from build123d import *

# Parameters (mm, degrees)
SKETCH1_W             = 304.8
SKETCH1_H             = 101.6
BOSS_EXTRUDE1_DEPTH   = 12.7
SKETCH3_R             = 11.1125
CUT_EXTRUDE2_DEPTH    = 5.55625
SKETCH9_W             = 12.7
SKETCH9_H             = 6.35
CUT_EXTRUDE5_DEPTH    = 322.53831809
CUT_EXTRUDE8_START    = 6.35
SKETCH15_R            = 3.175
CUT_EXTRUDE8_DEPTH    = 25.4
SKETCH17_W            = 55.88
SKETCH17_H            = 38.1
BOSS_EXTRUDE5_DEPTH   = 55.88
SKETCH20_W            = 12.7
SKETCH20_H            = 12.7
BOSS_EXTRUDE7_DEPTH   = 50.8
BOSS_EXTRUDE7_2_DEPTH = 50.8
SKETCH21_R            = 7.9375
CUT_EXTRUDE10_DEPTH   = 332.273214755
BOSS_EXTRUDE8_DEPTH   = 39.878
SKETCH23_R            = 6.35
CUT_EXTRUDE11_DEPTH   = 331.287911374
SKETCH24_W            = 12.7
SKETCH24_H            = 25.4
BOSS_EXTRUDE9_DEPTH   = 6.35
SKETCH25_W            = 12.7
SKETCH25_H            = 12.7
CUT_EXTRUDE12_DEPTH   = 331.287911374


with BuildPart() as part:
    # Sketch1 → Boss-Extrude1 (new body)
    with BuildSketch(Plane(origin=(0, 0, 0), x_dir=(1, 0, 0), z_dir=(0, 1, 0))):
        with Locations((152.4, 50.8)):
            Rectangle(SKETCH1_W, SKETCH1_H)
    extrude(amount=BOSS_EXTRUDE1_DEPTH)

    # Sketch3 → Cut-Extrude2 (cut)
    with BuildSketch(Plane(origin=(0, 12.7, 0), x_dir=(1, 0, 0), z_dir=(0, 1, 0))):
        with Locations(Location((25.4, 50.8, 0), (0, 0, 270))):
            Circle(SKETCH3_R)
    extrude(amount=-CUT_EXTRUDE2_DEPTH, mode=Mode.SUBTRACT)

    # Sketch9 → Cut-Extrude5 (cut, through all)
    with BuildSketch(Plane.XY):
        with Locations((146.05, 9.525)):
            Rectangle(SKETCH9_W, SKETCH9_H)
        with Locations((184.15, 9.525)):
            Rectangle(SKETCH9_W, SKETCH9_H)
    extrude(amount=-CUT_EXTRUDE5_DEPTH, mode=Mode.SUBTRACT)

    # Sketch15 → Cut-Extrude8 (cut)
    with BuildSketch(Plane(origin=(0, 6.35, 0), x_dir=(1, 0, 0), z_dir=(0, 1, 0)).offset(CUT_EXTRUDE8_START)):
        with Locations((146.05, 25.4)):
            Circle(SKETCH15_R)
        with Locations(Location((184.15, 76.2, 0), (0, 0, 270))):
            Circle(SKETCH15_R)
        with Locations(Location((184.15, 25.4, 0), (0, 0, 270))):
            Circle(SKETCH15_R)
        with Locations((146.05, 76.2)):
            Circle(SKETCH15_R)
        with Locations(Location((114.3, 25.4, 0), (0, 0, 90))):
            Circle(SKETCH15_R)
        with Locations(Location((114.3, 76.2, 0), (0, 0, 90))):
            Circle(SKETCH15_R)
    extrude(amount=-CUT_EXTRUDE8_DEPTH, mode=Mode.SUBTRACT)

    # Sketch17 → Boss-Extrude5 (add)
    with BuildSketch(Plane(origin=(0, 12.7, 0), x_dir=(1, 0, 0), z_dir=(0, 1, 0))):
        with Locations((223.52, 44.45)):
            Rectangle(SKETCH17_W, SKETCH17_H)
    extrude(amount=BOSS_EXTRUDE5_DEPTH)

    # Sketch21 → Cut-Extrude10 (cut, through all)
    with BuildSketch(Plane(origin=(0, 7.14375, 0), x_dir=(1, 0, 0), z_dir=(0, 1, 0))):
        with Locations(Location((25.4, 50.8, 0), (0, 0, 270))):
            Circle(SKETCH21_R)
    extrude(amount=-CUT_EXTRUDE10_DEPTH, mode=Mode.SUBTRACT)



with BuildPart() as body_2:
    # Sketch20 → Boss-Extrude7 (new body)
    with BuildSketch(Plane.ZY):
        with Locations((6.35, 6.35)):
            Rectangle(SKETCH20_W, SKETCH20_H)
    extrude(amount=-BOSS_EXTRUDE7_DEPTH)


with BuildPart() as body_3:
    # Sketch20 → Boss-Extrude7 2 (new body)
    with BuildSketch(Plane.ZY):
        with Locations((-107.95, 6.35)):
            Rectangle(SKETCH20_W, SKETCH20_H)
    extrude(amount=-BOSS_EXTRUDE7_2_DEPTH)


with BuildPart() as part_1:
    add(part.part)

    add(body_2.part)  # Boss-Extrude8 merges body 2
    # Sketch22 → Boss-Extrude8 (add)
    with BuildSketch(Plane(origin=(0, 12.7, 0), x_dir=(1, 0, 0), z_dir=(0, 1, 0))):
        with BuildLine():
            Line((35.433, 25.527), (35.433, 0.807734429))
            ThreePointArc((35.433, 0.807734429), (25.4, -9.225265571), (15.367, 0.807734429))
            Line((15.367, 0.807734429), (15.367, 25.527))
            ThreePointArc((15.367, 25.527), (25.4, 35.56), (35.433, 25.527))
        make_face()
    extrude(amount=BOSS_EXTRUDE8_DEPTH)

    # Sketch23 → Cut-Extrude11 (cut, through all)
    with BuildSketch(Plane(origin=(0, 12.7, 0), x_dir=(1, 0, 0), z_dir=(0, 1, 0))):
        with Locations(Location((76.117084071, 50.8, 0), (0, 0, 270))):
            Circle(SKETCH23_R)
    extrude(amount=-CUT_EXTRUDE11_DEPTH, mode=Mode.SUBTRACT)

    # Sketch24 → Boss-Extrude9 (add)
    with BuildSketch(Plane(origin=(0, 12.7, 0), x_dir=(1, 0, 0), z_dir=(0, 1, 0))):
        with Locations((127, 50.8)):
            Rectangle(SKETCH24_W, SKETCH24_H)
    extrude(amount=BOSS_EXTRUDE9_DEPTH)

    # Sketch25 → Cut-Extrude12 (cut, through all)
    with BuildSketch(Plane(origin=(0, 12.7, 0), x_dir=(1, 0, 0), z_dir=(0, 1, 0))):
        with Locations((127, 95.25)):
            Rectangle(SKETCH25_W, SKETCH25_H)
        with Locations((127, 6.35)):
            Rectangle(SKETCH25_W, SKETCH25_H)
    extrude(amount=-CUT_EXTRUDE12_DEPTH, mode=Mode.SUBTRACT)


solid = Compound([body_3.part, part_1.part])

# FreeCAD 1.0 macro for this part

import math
import FreeCAD as App
import Part
import Sketcher
Q = App.Units.Quantity


def add_polygon(sketch, points):
    """Adds a closed chain of lines whose ends are joined by coincident constraints."""
    first, n = sketch.GeometryCount, len(points)
    for a, b in zip(points, points[1:] + points[:1]):
        sketch.addGeometry(Part.LineSegment(App.Vector(*a, 0), App.Vector(*b, 0)), False)
    for i in range(n):
        sketch.addConstraint(Sketcher.Constraint("Coincident", first + i, 2, first + (i + 1) % n, 1))

doc = App.newDocument("Part")
body = doc.addObject("PartDesign::Body", "Body")

sketch1 = doc.addObject("Sketcher::SketchObject", "Sketch")
body.addObject(sketch1)
sketch1.AttachmentSupport = (doc.XZ_Plane, [""])
sketch1.MapMode = "FlatFace"
add_polygon(sketch1, [(0, -102), (0, 0), (305, 0), (305, -102)])
sketch1.addConstraint(Sketcher.Constraint("Vertical", 0))
sketch1.addConstraint(Sketcher.Constraint("Horizontal", 1))
sketch1.addConstraint(Sketcher.Constraint("Vertical", 2))
sketch1.addConstraint(Sketcher.Constraint("Horizontal", 3))
sketch1.addConstraint(Sketcher.Constraint("Coincident", 0, 2, -1, 1))
sketch1.addConstraint(Sketcher.Constraint("DistanceX", 1, 1, 1, 2, Q("12 in")))
sketch1.addConstraint(Sketcher.Constraint("DistanceY", 0, 1, 0, 2, Q("4 in")))
pad1 = doc.addObject("PartDesign::Pad", "Pad")
body.addObject(pad1)
pad1.Profile = sketch1
pad1.Length = Q("0.5 in")
pad1.Reversed = True

sketch2 = doc.addObject("Sketcher::SketchObject", "Sketch001")
body.addObject(sketch2)
sketch2.AttachmentSupport = (doc.XZ_Plane, [""])
sketch2.MapMode = "FlatFace"
sketch2.AttachmentOffset = App.Placement(App.Vector(0, 0, -0.5 * 25.4), App.Rotation())
sketch2.addGeometry(Part.Circle(App.Vector(25, -51, 0), App.Vector(0, 0, 1), 11), False)
sketch2.addConstraint(Sketcher.Constraint("Diameter", 0, Q("0.875 in")))
sketch2.addConstraint(Sketcher.Constraint("DistanceX", -1, 1, 0, 3, Q("1 in")))
sketch2.addConstraint(Sketcher.Constraint("DistanceY", 0, 3, -1, 1, Q("2 in")))
pocket1 = doc.addObject("PartDesign::Pocket", "Pocket")
body.addObject(pocket1)
pocket1.Profile = sketch2
pocket1.Length = Q("0.21875 in")
pocket1.Reversed = True

sketch3 = doc.addObject("Sketcher::SketchObject", "Sketch002")
body.addObject(sketch3)
sketch3.AttachmentSupport = (doc.XY_Plane, [""])
sketch3.MapMode = "FlatFace"
add_polygon(sketch3, [(140, 13), (140, 6), (152, 6), (152, 13)])
add_polygon(sketch3, [(178, 13), (178, 6), (190, 6), (190, 13)])
sketch3.addConstraint(Sketcher.Constraint("Vertical", 0))
sketch3.addConstraint(Sketcher.Constraint("Horizontal", 1))
sketch3.addConstraint(Sketcher.Constraint("Vertical", 2))
sketch3.addConstraint(Sketcher.Constraint("Horizontal", 3))
sketch3.addConstraint(Sketcher.Constraint("Vertical", 4))
sketch3.addConstraint(Sketcher.Constraint("Horizontal", 5))
sketch3.addConstraint(Sketcher.Constraint("Vertical", 6))
sketch3.addConstraint(Sketcher.Constraint("Horizontal", 7))
sketch3.addConstraint(Sketcher.Constraint("Horizontal", 1, 2, 4, 2))
sketch3.addConstraint(Sketcher.Constraint("Horizontal", 3, 2, 6, 2))
sketch3.addConstraint(Sketcher.Constraint("Equal", 3, 5))
sketch3.addConstraint(Sketcher.Constraint("DistanceX", 1, 1, 1, 2, Q("0.5 in")))
sketch3.addConstraint(Sketcher.Constraint("DistanceX", -1, 1, 1, 2, Q("6 in")))
sketch3.addConstraint(Sketcher.Constraint("DistanceX", -1, 1, 4, 2, Q("7 in")))
sketch3.addConstraint(Sketcher.Constraint("DistanceY", 0, 2, 0, 1, Q("0.25 in")))
sketch3.addConstraint(Sketcher.Constraint("DistanceY", -1, 1, 2, 2, Q("0.5 in")))
pocket2 = doc.addObject("PartDesign::Pocket", "Pocket001")
body.addObject(pocket2)
pocket2.Profile = sketch3
pocket2.Type = "ThroughAll"

sketch4 = doc.addObject("Sketcher::SketchObject", "Sketch003")
body.addObject(sketch4)
sketch4.AttachmentSupport = (doc.XZ_Plane, [""])
sketch4.MapMode = "FlatFace"
sketch4.AttachmentOffset = App.Placement(App.Vector(0, 0, -0.5 * 25.4), App.Rotation())
sketch4.addGeometry(Part.Circle(App.Vector(146.1, -25.4, 0), App.Vector(0, 0, 1), 3.2), False)
sketch4.addGeometry(Part.Circle(App.Vector(184.2, -76.2, 0), App.Vector(0, 0, 1), 3.2), False)
sketch4.addGeometry(Part.Circle(App.Vector(184.2, -25.4, 0), App.Vector(0, 0, 1), 3.2), False)
sketch4.addGeometry(Part.Circle(App.Vector(146.1, -76.2, 0), App.Vector(0, 0, 1), 3.2), False)
sketch4.addGeometry(Part.Circle(App.Vector(114.3, -25.4, 0), App.Vector(0, 0, 1), 3.2), False)
sketch4.addGeometry(Part.Circle(App.Vector(114.3, -76.2, 0), App.Vector(0, 0, 1), 3.2), False)
sketch4.addConstraint(Sketcher.Constraint("Equal", 0, 1))
sketch4.addConstraint(Sketcher.Constraint("Equal", 1, 2))
sketch4.addConstraint(Sketcher.Constraint("Equal", 2, 3))
sketch4.addConstraint(Sketcher.Constraint("Equal", 3, 4))
sketch4.addConstraint(Sketcher.Constraint("Equal", 4, 5))
sketch4.addConstraint(Sketcher.Constraint("Horizontal", 0, 3, 2, 3))
sketch4.addConstraint(Sketcher.Constraint("Horizontal", 1, 3, 3, 3))
sketch4.addConstraint(Sketcher.Constraint("Horizontal", 2, 3, 4, 3))
sketch4.addConstraint(Sketcher.Constraint("Horizontal", 3, 3, 5, 3))
sketch4.addConstraint(Sketcher.Constraint("Vertical", 1, 3, 2, 3))
sketch4.addConstraint(Sketcher.Constraint("Vertical", 0, 3, 3, 3))
sketch4.addConstraint(Sketcher.Constraint("Vertical", 4, 3, 5, 3))
sketch4.addConstraint(Sketcher.Constraint("Diameter", 0, Q("0.25 in")))
sketch4.addConstraint(Sketcher.Constraint("DistanceY", 0, 3, -1, 1, Q("1 in")))
sketch4.addConstraint(Sketcher.Constraint("DistanceY", 1, 3, -1, 1, Q("3 in")))
sketch4.addConstraint(Sketcher.Constraint("DistanceX", -1, 1, 4, 3, Q("4.5 in")))
sketch4.addConstraint(Sketcher.Constraint("DistanceX", 0, 3, 1, 3, Q("1.5 in")))
sketch4.addConstraint(Sketcher.Constraint("DistanceX", -1, 1, 0, 3, Q("5.75 in")))
pocket3 = doc.addObject("PartDesign::Pocket", "Pocket002")
body.addObject(pocket3)
pocket3.Profile = sketch4
pocket3.Length = Q("1 in")
pocket3.Reversed = True

sketch5 = doc.addObject("Sketcher::SketchObject", "Sketch004")
body.addObject(sketch5)
sketch5.AttachmentSupport = (doc.XZ_Plane, [""])
sketch5.MapMode = "FlatFace"
sketch5.AttachmentOffset = App.Placement(App.Vector(0, 0, -0.5 * 25.4), App.Rotation())
add_polygon(sketch5, [(196, -64), (196, -25), (251, -25), (251, -64)])
sketch5.addConstraint(Sketcher.Constraint("Vertical", 0))
sketch5.addConstraint(Sketcher.Constraint("Horizontal", 1))
sketch5.addConstraint(Sketcher.Constraint("Vertical", 2))
sketch5.addConstraint(Sketcher.Constraint("Horizontal", 3))
sketch5.addConstraint(Sketcher.Constraint("DistanceX", 1, 1, 1, 2, Q("2.2 in")))
sketch5.addConstraint(Sketcher.Constraint("DistanceY", 0, 1, 0, 2, Q("1.5 in")))
sketch5.addConstraint(Sketcher.Constraint("DistanceY", 0, 2, -1, 1, Q("1 in")))
sketch5.addConstraint(Sketcher.Constraint("DistanceX", -1, 1, 0, 2, Q("7.7 in")))
pad2 = doc.addObject("PartDesign::Pad", "Pad001")
body.addObject(pad2)
pad2.Profile = sketch5
pad2.Length = Q("2.2 in")
pad2.Reversed = True

sketch6 = doc.addObject("Sketcher::SketchObject", "Sketch005")
body.addObject(sketch6)
sketch6.AttachmentSupport = (doc.XZ_Plane, [""])
sketch6.MapMode = "FlatFace"
sketch6.AttachmentOffset = App.Placement(App.Vector(0, 0, -0.28125 * 25.4), App.Rotation())
sketch6.addGeometry(Part.Circle(App.Vector(25, -51, 0), App.Vector(0, 0, 1), 8), False)
sketch6.addConstraint(Sketcher.Constraint("Diameter", 0, Q("0.625 in")))
sketch6.addConstraint(Sketcher.Constraint("DistanceX", -1, 1, 0, 3, Q("1 in")))
sketch6.addConstraint(Sketcher.Constraint("DistanceY", 0, 3, -1, 1, Q("2 in")))
pocket4 = doc.addObject("PartDesign::Pocket", "Pocket003")
body.addObject(pocket4)
pocket4.Profile = sketch6
pocket4.Type = "ThroughAll"
pocket4.Reversed = True
body2 = doc.addObject("PartDesign::Body", "Body001")

sketch7 = doc.addObject("Sketcher::SketchObject", "Sketch006")
body2.addObject(sketch7)
sketch7.AttachmentSupport = (doc.getObject("YZ_Plane001"), [""])
sketch7.MapMode = "FlatFace"
add_polygon(sketch7, [(13, 0), (0, 0), (0, 13), (13, 13)])
sketch7.addConstraint(Sketcher.Constraint("Horizontal", 0))
sketch7.addConstraint(Sketcher.Constraint("Vertical", 1))
sketch7.addConstraint(Sketcher.Constraint("Horizontal", 2))
sketch7.addConstraint(Sketcher.Constraint("Vertical", 3))
sketch7.addConstraint(Sketcher.Constraint("Coincident", 0, 2, -1, 1))
sketch7.addConstraint(Sketcher.Constraint("Equal", 2, 1))
sketch7.addConstraint(Sketcher.Constraint("DistanceX", 0, 2, 0, 1, Q("0.5 in")))
pad3 = doc.addObject("PartDesign::Pad", "Pad002")
body2.addObject(pad3)
pad3.Profile = sketch7
pad3.Length = Q("2 in")
body3 = doc.addObject("PartDesign::Body", "Body002")

sketch8 = doc.addObject("Sketcher::SketchObject", "Sketch007")
body3.addObject(sketch8)
sketch8.AttachmentSupport = (doc.getObject("YZ_Plane002"), [""])
sketch8.MapMode = "FlatFace"
add_polygon(sketch8, [(13, -114), (0, -114), (0, -102), (13, -102)])
sketch8.addConstraint(Sketcher.Constraint("Horizontal", 0))
sketch8.addConstraint(Sketcher.Constraint("Vertical", 1))
sketch8.addConstraint(Sketcher.Constraint("Horizontal", 2))
sketch8.addConstraint(Sketcher.Constraint("Vertical", 3))
sketch8.addConstraint(Sketcher.Constraint("PointOnObject", 0, 2, -2))
sketch8.addConstraint(Sketcher.Constraint("Equal", 2, 1))
sketch8.addConstraint(Sketcher.Constraint("DistanceX", 0, 2, 0, 1, Q("0.5 in")))
sketch8.addConstraint(Sketcher.Constraint("DistanceY", 1, 2, -1, 1, Q("4 in")))
pad4 = doc.addObject("PartDesign::Pad", "Pad003")
body3.addObject(pad4)
pad4.Profile = sketch8
pad4.Length = Q("2 in")
doc.recompute()

boolean = doc.addObject("PartDesign::Boolean", "Boolean")
body.addObject(boolean)
boolean.Type = "Fuse"
boolean.addObjects([body2])

sketch9 = doc.addObject("Sketcher::SketchObject", "Sketch008")
body.addObject(sketch9)
sketch9.AttachmentSupport = (doc.XZ_Plane, [""])
sketch9.MapMode = "FlatFace"
sketch9.AttachmentOffset = App.Placement(App.Vector(0, 0, -0.5 * 25.4), App.Rotation())
sketch9.addGeometry(Part.LineSegment(App.Vector(35, -1, 0), App.Vector(35, -26, 0)), False)
sketch9.addGeometry(Part.ArcOfCircle(Part.Circle(App.Vector(25, -26, 0), App.Vector(0, 0, 1), 10), math.radians(180), math.radians(360)), False)
sketch9.addGeometry(Part.LineSegment(App.Vector(15, -26, 0), App.Vector(15, -1, 0)), False)
sketch9.addGeometry(Part.ArcOfCircle(Part.Circle(App.Vector(25, -1, 0), App.Vector(0, 0, 1), 10), math.radians(0), math.radians(180)), False)
sketch9.addConstraint(Sketcher.Constraint("Tangent", 0, 2, 1, 2))
sketch9.addConstraint(Sketcher.Constraint("Tangent", 1, 1, 2, 1))
sketch9.addConstraint(Sketcher.Constraint("Tangent", 2, 2, 3, 2))
sketch9.addConstraint(Sketcher.Constraint("Tangent", 3, 1, 0, 1))
sketch9.addConstraint(Sketcher.Constraint("Vertical", 0))
sketch9.addConstraint(Sketcher.Constraint("Vertical", 2))
sketch9.addConstraint(Sketcher.Constraint("DistanceX", -1, 1, 1, 3, Q("1 in")))
sketch9.addConstraint(Sketcher.Constraint("Radius", 1, Q("0.395 in")))
sketch9.addConstraint(Sketcher.Constraint("DistanceY", 1, 3, -1, 1, Q("1.005 in")))
sketch9.addConstraint(Sketcher.Constraint("DistanceY", 0, 2, 0, 1, Q("24.719266 mm")))
pad5 = doc.addObject("PartDesign::Pad", "Pad004")
body.addObject(pad5)
pad5.Profile = sketch9
pad5.Length = Q("1.57 in")
pad5.Reversed = True

sketch10 = doc.addObject("Sketcher::SketchObject", "Sketch009")
body.addObject(sketch10)
sketch10.AttachmentSupport = (doc.XZ_Plane, [""])
sketch10.MapMode = "FlatFace"
sketch10.AttachmentOffset = App.Placement(App.Vector(0, 0, -0.5 * 25.4), App.Rotation())
sketch10.addGeometry(Part.Circle(App.Vector(76, -51, 0), App.Vector(0, 0, 1), 6), False)
sketch10.addConstraint(Sketcher.Constraint("Diameter", 0, Q("0.5 in")))
sketch10.addConstraint(Sketcher.Constraint("DistanceY", 0, 3, -1, 1, Q("2 in")))
sketch10.addConstraint(Sketcher.Constraint("DistanceX", -1, 1, 0, 3, Q("76.117084 mm")))
pocket5 = doc.addObject("PartDesign::Pocket", "Pocket004")
body.addObject(pocket5)
pocket5.Profile = sketch10
pocket5.Type = "ThroughAll"
pocket5.Reversed = True

sketch11 = doc.addObject("Sketcher::SketchObject", "Sketch010")
body.addObject(sketch11)
sketch11.AttachmentSupport = (doc.XZ_Plane, [""])
sketch11.MapMode = "FlatFace"
sketch11.AttachmentOffset = App.Placement(App.Vector(0, 0, -0.5 * 25.4), App.Rotation())
add_polygon(sketch11, [(121, -64), (121, -38), (133, -38), (133, -64)])
sketch11.addConstraint(Sketcher.Constraint("Vertical", 0))
sketch11.addConstraint(Sketcher.Constraint("Horizontal", 1))
sketch11.addConstraint(Sketcher.Constraint("Vertical", 2))
sketch11.addConstraint(Sketcher.Constraint("Horizontal", 3))
sketch11.addConstraint(Sketcher.Constraint("DistanceY", 0, 1, 0, 2, Q("1 in")))
sketch11.addConstraint(Sketcher.Constraint("DistanceX", 1, 1, 1, 2, Q("0.5 in")))
sketch11.addConstraint(Sketcher.Constraint("DistanceY", 0, 2, -1, 1, Q("1.5 in")))
sketch11.addConstraint(Sketcher.Constraint("DistanceX", -1, 1, 0, 2, Q("4.75 in")))
pad6 = doc.addObject("PartDesign::Pad", "Pad005")
body.addObject(pad6)
pad6.Profile = sketch11
pad6.Length = Q("0.25 in")
pad6.Reversed = True

sketch12 = doc.addObject("Sketcher::SketchObject", "Sketch011")
body.addObject(sketch12)
sketch12.AttachmentSupport = (doc.XZ_Plane, [""])
sketch12.MapMode = "FlatFace"
sketch12.AttachmentOffset = App.Placement(App.Vector(0, 0, -0.5 * 25.4), App.Rotation())
add_polygon(sketch12, [(121, -102), (121, -89), (133, -89), (133, -102)])
add_polygon(sketch12, [(121, -13), (121, 0), (133, 0), (133, -13)])
sketch12.addConstraint(Sketcher.Constraint("Vertical", 0))
sketch12.addConstraint(Sketcher.Constraint("Horizontal", 1))
sketch12.addConstraint(Sketcher.Constraint("Vertical", 2))
sketch12.addConstraint(Sketcher.Constraint("Horizontal", 3))
sketch12.addConstraint(Sketcher.Constraint("Vertical", 4))
sketch12.addConstraint(Sketcher.Constraint("Horizontal", 5))
sketch12.addConstraint(Sketcher.Constraint("Vertical", 6))
sketch12.addConstraint(Sketcher.Constraint("Horizontal", 7))
sketch12.addConstraint(Sketcher.Constraint("PointOnObject", 4, 2, -1))
sketch12.addConstraint(Sketcher.Constraint("Vertical", 3, 2, 4, 2))
sketch12.addConstraint(Sketcher.Constraint("Vertical", 2, 2, 5, 2))
sketch12.addConstraint(Sketcher.Constraint("Equal", 7, 0))
sketch12.addConstraint(Sketcher.Constraint("Equal", 2, 4))
sketch12.addConstraint(Sketcher.Constraint("DistanceX", 1, 1, 1, 2, Q("0.5 in")))
sketch12.addConstraint(Sketcher.Constraint("DistanceY", 2, 2, -1, 1, Q("4 in")))
sketch12.addConstraint(Sketcher.Constraint("DistanceX", -1, 1, 0, 2, Q("4.75 in")))
pocket6 = doc.addObject("PartDesign::Pocket", "Pocket005")
body.addObject(pocket6)
pocket6.Profile = sketch12
pocket6.Type = "ThroughAll"
pocket6.Reversed = True

doc.recompute()
